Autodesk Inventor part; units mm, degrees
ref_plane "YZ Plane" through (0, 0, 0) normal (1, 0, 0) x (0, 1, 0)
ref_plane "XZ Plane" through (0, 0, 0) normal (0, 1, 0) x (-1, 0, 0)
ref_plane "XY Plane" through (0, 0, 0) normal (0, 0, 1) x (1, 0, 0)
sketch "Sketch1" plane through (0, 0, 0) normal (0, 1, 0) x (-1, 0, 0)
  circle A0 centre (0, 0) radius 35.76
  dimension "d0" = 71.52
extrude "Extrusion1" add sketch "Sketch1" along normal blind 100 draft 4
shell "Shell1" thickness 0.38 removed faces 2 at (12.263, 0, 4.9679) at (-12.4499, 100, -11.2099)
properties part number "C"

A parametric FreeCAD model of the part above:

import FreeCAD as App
import Part
import Sketcher
from FreeCAD import Vector
Q = App.Units.Quantity


def faces_at(feature, points):
    """Names of the faces that lie closest to the given points."""
    faces = feature.Shape.Faces
    near = lambda p: min(range(len(faces)), key=lambda i: faces[i].distToShape(Part.Vertex(*p))[0])
    return sorted({f"Face{near(p) + 1}" for p in points})

doc = App.newDocument("Part")
body = doc.addObject("PartDesign::Body", "Body")

sketch1 = doc.addObject("Sketcher::SketchObject", "Sketch")
body.addObject(sketch1)
sketch1.AttachmentSupport = (doc.XZ_Plane, [""])
sketch1.MapMode = "FlatFace"
sketch1.addGeometry(Part.Circle(Vector(0, 0, 0), Vector(0, 0, 1), 35.76), False)
sketch1.addConstraint(Sketcher.Constraint("Coincident", 0, 3, -1, 1))
sketch1.addConstraint(Sketcher.Constraint("Diameter", 0, Q("71.52 mm")))
pad1 = doc.addObject("PartDesign::Pad", "Pad")
body.addObject(pad1)
pad1.Profile = sketch1
pad1.Length = Q("3.9370079 in")
pad1.Reversed = True
pad1.TaperAngle = 4
doc.recompute()

thickness = doc.addObject("PartDesign::Thickness", "Thickness")
body.addObject(thickness)
thickness.Base = (pad1, faces_at(pad1, [(12.263, 0, 4.968), (-12.45, 100, -11.21)]))
thickness.Value = 0.38
thickness.Reversed = True
thickness.Join = "Intersection"

doc.recompute()
